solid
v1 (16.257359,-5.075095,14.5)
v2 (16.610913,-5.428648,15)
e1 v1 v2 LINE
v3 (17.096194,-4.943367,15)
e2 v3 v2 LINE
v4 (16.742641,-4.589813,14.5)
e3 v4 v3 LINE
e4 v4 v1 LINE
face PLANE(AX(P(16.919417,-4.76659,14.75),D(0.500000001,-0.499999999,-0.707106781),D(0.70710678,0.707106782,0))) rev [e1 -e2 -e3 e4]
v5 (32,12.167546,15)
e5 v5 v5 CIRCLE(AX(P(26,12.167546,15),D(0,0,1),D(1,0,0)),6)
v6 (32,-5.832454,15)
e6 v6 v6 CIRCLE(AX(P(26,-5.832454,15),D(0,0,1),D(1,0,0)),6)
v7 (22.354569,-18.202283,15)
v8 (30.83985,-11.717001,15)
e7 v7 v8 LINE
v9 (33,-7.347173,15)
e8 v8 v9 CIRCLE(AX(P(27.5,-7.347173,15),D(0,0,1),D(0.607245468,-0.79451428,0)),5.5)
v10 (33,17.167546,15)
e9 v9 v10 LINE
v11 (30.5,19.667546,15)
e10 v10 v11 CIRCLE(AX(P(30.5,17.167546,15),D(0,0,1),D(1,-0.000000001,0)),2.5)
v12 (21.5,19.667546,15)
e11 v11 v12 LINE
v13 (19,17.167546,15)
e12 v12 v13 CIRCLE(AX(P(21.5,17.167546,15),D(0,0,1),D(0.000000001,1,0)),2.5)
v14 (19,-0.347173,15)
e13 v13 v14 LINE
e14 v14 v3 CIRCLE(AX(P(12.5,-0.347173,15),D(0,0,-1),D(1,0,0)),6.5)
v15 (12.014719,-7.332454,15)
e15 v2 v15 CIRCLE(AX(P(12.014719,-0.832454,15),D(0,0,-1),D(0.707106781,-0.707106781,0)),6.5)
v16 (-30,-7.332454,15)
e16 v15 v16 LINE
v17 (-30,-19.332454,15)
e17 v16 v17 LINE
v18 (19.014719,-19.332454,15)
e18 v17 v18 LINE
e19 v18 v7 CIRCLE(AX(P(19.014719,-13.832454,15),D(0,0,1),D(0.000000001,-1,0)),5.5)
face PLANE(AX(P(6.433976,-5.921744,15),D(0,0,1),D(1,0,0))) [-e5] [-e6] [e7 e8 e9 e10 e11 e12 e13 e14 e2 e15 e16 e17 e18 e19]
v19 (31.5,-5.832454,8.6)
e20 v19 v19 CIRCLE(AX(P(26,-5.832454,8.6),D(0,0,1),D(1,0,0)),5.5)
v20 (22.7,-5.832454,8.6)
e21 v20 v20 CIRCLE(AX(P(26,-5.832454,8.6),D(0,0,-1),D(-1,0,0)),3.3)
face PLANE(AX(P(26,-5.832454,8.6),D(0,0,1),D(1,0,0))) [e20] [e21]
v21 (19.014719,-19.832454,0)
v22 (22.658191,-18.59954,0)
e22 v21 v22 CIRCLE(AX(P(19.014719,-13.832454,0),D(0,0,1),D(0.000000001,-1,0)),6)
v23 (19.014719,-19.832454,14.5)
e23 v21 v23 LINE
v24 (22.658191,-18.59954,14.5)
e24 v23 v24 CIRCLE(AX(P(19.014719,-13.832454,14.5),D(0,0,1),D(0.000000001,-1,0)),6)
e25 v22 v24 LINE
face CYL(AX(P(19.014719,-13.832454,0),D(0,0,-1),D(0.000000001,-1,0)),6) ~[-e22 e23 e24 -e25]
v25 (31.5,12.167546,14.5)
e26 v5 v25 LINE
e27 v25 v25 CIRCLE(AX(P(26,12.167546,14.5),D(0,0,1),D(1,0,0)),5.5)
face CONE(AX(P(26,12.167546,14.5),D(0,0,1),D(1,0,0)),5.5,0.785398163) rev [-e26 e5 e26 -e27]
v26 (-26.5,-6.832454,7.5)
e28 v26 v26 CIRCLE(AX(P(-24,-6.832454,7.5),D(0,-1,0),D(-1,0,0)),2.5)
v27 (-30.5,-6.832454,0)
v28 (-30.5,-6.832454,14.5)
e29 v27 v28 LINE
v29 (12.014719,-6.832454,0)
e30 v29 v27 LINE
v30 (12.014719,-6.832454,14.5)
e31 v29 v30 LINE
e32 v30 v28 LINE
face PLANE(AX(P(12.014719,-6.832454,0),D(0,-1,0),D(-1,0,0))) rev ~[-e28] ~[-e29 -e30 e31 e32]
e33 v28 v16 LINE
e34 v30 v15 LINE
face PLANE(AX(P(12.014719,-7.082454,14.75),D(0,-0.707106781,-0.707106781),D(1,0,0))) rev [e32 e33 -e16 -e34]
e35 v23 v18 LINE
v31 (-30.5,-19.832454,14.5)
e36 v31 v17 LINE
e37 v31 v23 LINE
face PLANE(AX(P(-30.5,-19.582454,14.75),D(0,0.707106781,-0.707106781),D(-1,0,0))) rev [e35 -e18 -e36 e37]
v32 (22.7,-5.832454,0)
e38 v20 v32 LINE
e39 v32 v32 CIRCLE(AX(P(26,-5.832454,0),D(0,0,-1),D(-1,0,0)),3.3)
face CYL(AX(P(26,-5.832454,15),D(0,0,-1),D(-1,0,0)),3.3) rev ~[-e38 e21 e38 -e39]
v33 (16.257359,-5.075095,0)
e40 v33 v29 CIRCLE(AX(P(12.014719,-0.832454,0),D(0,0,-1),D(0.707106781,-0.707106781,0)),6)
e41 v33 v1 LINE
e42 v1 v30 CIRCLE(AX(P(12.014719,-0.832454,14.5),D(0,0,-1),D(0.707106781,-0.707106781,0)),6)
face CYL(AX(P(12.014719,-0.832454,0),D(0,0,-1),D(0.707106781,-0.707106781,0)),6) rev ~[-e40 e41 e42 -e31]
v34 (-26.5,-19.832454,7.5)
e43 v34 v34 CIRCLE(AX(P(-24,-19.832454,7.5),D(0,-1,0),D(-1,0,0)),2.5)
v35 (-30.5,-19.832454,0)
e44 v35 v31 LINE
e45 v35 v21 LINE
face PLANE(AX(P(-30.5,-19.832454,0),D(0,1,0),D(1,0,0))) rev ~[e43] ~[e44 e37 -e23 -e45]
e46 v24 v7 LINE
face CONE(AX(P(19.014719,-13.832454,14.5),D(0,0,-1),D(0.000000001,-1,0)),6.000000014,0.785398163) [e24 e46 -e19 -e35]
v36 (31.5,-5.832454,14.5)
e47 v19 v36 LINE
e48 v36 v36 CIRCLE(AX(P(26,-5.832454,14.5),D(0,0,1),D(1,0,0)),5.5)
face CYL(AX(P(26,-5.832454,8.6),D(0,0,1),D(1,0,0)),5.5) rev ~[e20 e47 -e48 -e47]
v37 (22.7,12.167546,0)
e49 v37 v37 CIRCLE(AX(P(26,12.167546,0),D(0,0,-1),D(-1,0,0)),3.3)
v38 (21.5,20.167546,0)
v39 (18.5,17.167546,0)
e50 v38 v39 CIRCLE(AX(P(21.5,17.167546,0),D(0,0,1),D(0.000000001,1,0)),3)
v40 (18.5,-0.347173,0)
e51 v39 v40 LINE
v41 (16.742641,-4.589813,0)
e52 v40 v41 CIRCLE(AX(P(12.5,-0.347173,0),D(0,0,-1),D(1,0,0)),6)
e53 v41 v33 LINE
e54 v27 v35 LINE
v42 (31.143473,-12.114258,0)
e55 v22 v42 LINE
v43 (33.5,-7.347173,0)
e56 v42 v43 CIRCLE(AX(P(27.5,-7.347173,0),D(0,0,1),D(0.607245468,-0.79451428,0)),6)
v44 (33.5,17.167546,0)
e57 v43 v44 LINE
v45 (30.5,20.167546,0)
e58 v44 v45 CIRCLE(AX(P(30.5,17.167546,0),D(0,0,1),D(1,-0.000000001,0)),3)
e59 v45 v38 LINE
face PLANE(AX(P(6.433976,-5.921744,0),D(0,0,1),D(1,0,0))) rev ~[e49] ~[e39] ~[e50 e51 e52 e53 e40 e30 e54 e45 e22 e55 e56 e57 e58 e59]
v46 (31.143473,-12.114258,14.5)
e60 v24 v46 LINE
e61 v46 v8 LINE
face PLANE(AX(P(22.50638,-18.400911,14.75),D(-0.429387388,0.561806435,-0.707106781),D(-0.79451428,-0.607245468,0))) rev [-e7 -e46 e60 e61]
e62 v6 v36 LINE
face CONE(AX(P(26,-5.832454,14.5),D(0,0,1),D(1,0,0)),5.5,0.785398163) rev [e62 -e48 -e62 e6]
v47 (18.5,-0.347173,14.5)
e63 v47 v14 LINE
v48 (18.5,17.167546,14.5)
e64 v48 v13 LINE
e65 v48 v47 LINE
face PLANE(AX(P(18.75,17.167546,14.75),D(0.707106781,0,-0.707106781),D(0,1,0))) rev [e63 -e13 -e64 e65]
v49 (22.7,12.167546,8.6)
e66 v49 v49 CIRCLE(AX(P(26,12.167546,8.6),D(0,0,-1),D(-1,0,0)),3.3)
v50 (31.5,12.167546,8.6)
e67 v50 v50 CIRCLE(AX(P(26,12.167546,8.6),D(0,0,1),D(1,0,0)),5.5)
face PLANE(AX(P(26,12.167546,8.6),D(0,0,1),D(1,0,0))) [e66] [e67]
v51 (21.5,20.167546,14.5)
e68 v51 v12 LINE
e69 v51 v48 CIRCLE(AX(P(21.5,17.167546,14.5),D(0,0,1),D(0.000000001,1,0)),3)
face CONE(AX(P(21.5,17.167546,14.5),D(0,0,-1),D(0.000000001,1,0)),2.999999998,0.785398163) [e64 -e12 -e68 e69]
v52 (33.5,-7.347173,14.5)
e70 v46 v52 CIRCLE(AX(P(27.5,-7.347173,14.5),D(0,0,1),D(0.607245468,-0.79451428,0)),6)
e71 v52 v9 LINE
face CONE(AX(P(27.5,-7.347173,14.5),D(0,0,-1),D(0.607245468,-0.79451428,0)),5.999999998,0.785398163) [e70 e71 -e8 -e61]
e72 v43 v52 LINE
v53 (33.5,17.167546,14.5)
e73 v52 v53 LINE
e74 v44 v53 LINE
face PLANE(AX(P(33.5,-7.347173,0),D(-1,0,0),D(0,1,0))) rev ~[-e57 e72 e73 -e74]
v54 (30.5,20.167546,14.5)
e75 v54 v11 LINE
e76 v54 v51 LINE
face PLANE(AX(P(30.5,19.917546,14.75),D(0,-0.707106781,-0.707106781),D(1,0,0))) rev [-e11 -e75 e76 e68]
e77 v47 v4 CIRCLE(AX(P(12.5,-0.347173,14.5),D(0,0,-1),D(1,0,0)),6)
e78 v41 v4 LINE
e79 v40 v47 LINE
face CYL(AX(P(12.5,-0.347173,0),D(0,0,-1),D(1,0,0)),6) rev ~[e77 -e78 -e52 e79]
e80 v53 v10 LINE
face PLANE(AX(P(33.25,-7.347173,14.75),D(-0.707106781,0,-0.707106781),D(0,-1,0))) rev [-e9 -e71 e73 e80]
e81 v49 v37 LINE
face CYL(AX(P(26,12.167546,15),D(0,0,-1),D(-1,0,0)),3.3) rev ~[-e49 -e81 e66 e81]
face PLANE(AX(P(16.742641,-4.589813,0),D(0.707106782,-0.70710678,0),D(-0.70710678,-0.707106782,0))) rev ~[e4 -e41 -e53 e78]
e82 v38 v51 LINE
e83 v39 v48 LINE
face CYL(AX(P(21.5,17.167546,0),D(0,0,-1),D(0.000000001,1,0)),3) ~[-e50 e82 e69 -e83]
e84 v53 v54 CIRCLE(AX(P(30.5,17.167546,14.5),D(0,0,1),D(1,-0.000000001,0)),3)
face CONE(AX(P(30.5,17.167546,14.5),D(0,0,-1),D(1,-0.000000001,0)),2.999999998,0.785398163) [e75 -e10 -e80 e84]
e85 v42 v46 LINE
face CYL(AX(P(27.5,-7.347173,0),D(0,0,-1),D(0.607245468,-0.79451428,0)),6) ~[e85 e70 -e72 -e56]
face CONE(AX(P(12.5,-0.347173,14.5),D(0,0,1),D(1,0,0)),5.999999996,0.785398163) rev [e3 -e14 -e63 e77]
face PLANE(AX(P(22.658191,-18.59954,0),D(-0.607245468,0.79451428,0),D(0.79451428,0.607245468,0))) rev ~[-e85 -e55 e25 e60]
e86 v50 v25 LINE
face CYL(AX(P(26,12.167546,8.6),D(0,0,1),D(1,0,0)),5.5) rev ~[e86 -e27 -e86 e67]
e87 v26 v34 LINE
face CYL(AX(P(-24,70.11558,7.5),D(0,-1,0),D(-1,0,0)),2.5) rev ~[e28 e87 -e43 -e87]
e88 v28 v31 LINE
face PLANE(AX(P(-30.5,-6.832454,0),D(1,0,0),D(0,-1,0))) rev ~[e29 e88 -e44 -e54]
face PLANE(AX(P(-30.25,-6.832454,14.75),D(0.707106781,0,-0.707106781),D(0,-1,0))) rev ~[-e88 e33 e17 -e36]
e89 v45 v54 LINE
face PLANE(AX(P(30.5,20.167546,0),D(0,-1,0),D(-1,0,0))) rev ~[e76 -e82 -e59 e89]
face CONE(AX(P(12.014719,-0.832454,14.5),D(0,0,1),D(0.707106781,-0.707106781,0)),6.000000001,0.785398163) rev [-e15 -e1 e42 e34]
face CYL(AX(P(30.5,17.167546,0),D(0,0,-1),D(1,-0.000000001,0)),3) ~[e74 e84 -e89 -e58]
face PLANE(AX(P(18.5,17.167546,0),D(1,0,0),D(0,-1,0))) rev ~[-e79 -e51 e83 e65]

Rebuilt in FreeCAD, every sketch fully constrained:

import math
import FreeCAD as App
import Part
import Sketcher

V = App.Vector
Q = App.Units.Quantity


def edges_at(feature, points):
    """Names of the edges that pass closest to the given points."""
    edges = feature.Shape.Edges
    near = lambda p: min(range(len(edges)), key=lambda i: edges[i].distToShape(Part.Vertex(*p))[0])
    return sorted({f"Edge{near(p) + 1}" for p in points})

doc = App.newDocument("Part")
params = doc.addObject("Spreadsheet::Sheet", "Params")
for row, (alias, value) in enumerate([
    ("sketch1_radius", "6 mm"),
    ("sketch1_radius2", "3 mm"),
    ("sketch1_width", "9 mm"),
    ("sketch1_height", "13 mm"),
    ("pad1_length", "15 mm"),
    ("sketch2_diameter", "6.6 mm"),
    ("hole_diameter", "6.6 mm"),
    ("hole_cbore_diameter", "11 mm"),
    ("hole_cbore_depth", "6.4 mm"),
    ("sketch3_diameter", "5 mm"),
    ("hole2_diameter", "5 mm"),
    ("chamfer_size", "0.5 mm"),
], start=1):
    params.set(f"A{row}", alias)
    params.set(f"B{row}", "=" + value)
    params.setAlias(f"B{row}", alias)

body = doc.addObject("PartDesign::Body", "Body")

# Sketch on XY plane
sketch1 = doc.addObject("Sketcher::SketchObject", "Sketch")
body.addObject(sketch1)
sketch1.AttachmentSupport = (doc.XY_Plane, [""])
sketch1.MapMode = "FlatFace"
sketch1.addGeometry([
    Part.LineSegment(V(22.658191, -18.59954, 0), V(31.143473, -12.114258, 0)),  # 0
    Part.ArcOfCircle(Part.Circle(V(27.5, -7.347173, 0), V(0, 0, 1), 6), math.radians(-52.609402), math.radians(0)),  # 1
    Part.LineSegment(V(33.5, -7.347173, 0), V(33.5, 17.167546, 0)),  # 2
    Part.ArcOfCircle(Part.Circle(V(30.5, 17.167546, 0), V(0, 0, 1), 3), math.radians(0), math.radians(90)),  # 3
    Part.LineSegment(V(30.5, 20.167546, 0), V(21.5, 20.167546, 0)),  # 4
    Part.ArcOfCircle(Part.Circle(V(21.5, 17.167546, 0), V(0, 0, 1), 3), math.radians(90), math.radians(180)),  # 5
    Part.LineSegment(V(18.5, 17.167546, 0), V(18.5, -0.347173, 0)),  # 6
    Part.ArcOfCircle(Part.Circle(V(12.5, -0.347173, 0), V(0, 0, 1), 6), math.radians(-45), math.radians(0)),  # 7
    Part.LineSegment(V(16.742641, -4.589813, 0), V(16.257359, -5.075095, 0)),  # 8
    Part.ArcOfCircle(Part.Circle(V(12.014719, -0.832454, 0), V(0, 0, 1), 6), math.radians(-90), math.radians(-45)),  # 9
    Part.LineSegment(V(12.014719, -6.832454, 0), V(-30.5, -6.832454, 0)),  # 10
    Part.LineSegment(V(-30.5, -6.832454, 0), V(-30.5, -19.832454, 0)),  # 11
    Part.LineSegment(V(-30.5, -19.832454, 0), V(19.014719, -19.832454, 0)),  # 12
    Part.ArcOfCircle(Part.Circle(V(19.014719, -13.832454, 0), V(0, 0, 1), 6), math.radians(-90), math.radians(-52.609402)),  # 13
], False)
sketch1.addConstraint([
    Sketcher.Constraint("Tangent", 0, 2, 1, 1),
    Sketcher.Constraint("Tangent", 1, 2, 2, 1),
    Sketcher.Constraint("Tangent", 2, 2, 3, 1),
    Sketcher.Constraint("Tangent", 3, 2, 4, 1),
    Sketcher.Constraint("Tangent", 4, 2, 5, 1),
    Sketcher.Constraint("Tangent", 5, 2, 6, 1),
    Sketcher.Constraint("Tangent", 6, 2, 7, 2),
    Sketcher.Constraint("Tangent", 7, 1, 8, 1),
    Sketcher.Constraint("Tangent", 8, 2, 9, 2),
    Sketcher.Constraint("Tangent", 9, 1, 10, 1),
    Sketcher.Constraint("Coincident", 10, 2, 11, 1),
    Sketcher.Constraint("Coincident", 11, 2, 12, 1),
    Sketcher.Constraint("Tangent", 12, 2, 13, 1),
    Sketcher.Constraint("Tangent", 13, 2, 0, 1),
    Sketcher.Constraint("Vertical", 2),
    Sketcher.Constraint("Horizontal", 4),
    Sketcher.Constraint("Vertical", 6),
    Sketcher.Constraint("Horizontal", 10),
    Sketcher.Constraint("Vertical", 11),
    Sketcher.Constraint("Horizontal", 12),
    Sketcher.Constraint("Equal", 3, 5),
    Sketcher.Constraint("Equal", 1, 7),
    Sketcher.Constraint("Equal", 7, 9),
    Sketcher.Constraint("Equal", 9, 13),
    Sketcher.Constraint("Radius", 1, Q("6 mm")),
    Sketcher.Constraint("Radius", 3, Q("3 mm")),
    Sketcher.Constraint("DistanceX", 4, 2, 4, 1, Q("9 mm")),
    Sketcher.Constraint("DistanceY", 11, 2, 11, 1, Q("13 mm")),
    Sketcher.Constraint("Angle", 8, Q("-135 deg")),
    Sketcher.Constraint("DistanceY", 1, 3, 7, 3, Q("7 mm")),
    Sketcher.Constraint("DistanceY", 9, 3, 5, 3, Q("18 mm")),
    Sketcher.Constraint("DistanceX", 9, 3, 13, 3, Q("7 mm")),
    Sketcher.Constraint("DistanceX", 10, 2, 7, 3, Q("43 mm")),
    Sketcher.Constraint("DistanceX", -1, 1, 1, 3, Q("27.5 mm")),
    Sketcher.Constraint("DistanceX", 10, 2, 10, 1, Q("42.514719 mm")),
    Sketcher.Constraint("DistanceY", 0, 2, -1, 1, Q("12.114258 mm")),
])
sketch1.setExpression("Constraints[24]", "Params.sketch1_radius")
sketch1.setExpression("Constraints[25]", "Params.sketch1_radius2")
sketch1.setExpression("Constraints[26]", "Params.sketch1_width")
sketch1.setExpression("Constraints[27]", "Params.sketch1_height")
pad1 = doc.addObject("PartDesign::Pad", "Pad")
body.addObject(pad1)
pad1.Profile = sketch1
pad1.setExpression("Length", "Params.pad1_length")

# Sketch on XY plane
sketch2 = doc.addObject("Sketcher::SketchObject", "Sketch001")
body.addObject(sketch2)
sketch2.AttachmentSupport = (doc.XY_Plane, [""])
sketch2.MapMode = "FlatFace"
sketch2.AttachmentOffset = App.Placement(V(0, 0, 15), App.Rotation())
sketch2.addGeometry([
    Part.Circle(V(26, 12.167546, 0), V(0, 0, 1), 3.3),
    Part.Circle(V(26, -5.832454, 0), V(0, 0, 1), 3.3),
], False)
sketch2.addConstraint([
    Sketcher.Constraint("Equal", 0, 1),
    Sketcher.Constraint("Vertical", 0, 3, 1, 3),
    Sketcher.Constraint("Diameter", 0, Q("6.6 mm")),
    Sketcher.Constraint("DistanceX", -1, 1, 0, 3, Q("26 mm")),
    Sketcher.Constraint("DistanceY", 1, 3, 0, 3, Q("18 mm")),
    Sketcher.Constraint("DistanceY", -1, 1, 0, 3, Q("12.167546 mm")),
])
sketch2.setExpression("Constraints[2]", "Params.sketch2_diameter")
doc.recompute()
hole = doc.addObject("PartDesign::Hole", "Hole")
body.addObject(hole)
hole.Profile = sketch2
hole.ThreadType = "None"
hole.setExpression("Diameter", "Params.hole_diameter")
hole.DepthType = "ThroughAll"
hole.HoleCutType = "Counterbore"
hole.setExpression("HoleCutDiameter", "Params.hole_cbore_diameter")
hole.setExpression("HoleCutDepth", "Params.hole_cbore_depth")

# Sketch on XZ plane
sketch3 = doc.addObject("Sketcher::SketchObject", "Sketch002")
body.addObject(sketch3)
sketch3.AttachmentSupport = (doc.XZ_Plane, [""])
sketch3.MapMode = "FlatFace"
sketch3.AttachmentOffset = App.Placement(V(0, 0, 6.832454), App.Rotation())
sketch3.addGeometry(Part.Circle(V(-24, 7.5, 0), V(0, 0, 1), 2.5), False)
sketch3.addConstraint([
    Sketcher.Constraint("Diameter", 0, Q("5 mm")),
    Sketcher.Constraint("DistanceX", 0, 3, -1, 1, Q("24 mm")),
    Sketcher.Constraint("DistanceY", -1, 1, 0, 3, Q("7.5 mm")),
])
sketch3.setExpression("Constraints[0]", "Params.sketch3_diameter")
doc.recompute()
hole2 = doc.addObject("PartDesign::Hole", "Hole001")
body.addObject(hole2)
hole2.Profile = sketch3
hole2.ThreadType = "None"
hole2.setExpression("Diameter", "Params.hole2_diameter")
hole2.DepthType = "ThroughAll"
hole2.Reversed = True
doc.recompute()

chamfer = doc.addObject("PartDesign::Chamfer", "Chamfer")
body.addObject(chamfer)
chamfer.Base = (hole2, edges_at(hole2, [
    (20.938, -19.516, 15),
    (26.901, -15.357, 15),
    (32.879, -10.006, 15),
    (33.5, 4.91, 15),
    (32.621, 19.289, 15),
    (26, 20.168, 15),
    (19.379, 19.289, 15),
    (18.5, 8.41, 15),
    (18.043, -2.643, 15),
    (16.5, -4.832, 15),
    (-30.5, -13.332, 15),
    (14.311, -6.376, 15),
    (20.5, -5.832, 15),
    (-9.243, -6.832, 15),
    (20.5, 12.168, 15),
    (-5.743, -19.832, 15),
]))
chamfer.setExpression("Size", "Params.chamfer_size")

doc.recompute()
